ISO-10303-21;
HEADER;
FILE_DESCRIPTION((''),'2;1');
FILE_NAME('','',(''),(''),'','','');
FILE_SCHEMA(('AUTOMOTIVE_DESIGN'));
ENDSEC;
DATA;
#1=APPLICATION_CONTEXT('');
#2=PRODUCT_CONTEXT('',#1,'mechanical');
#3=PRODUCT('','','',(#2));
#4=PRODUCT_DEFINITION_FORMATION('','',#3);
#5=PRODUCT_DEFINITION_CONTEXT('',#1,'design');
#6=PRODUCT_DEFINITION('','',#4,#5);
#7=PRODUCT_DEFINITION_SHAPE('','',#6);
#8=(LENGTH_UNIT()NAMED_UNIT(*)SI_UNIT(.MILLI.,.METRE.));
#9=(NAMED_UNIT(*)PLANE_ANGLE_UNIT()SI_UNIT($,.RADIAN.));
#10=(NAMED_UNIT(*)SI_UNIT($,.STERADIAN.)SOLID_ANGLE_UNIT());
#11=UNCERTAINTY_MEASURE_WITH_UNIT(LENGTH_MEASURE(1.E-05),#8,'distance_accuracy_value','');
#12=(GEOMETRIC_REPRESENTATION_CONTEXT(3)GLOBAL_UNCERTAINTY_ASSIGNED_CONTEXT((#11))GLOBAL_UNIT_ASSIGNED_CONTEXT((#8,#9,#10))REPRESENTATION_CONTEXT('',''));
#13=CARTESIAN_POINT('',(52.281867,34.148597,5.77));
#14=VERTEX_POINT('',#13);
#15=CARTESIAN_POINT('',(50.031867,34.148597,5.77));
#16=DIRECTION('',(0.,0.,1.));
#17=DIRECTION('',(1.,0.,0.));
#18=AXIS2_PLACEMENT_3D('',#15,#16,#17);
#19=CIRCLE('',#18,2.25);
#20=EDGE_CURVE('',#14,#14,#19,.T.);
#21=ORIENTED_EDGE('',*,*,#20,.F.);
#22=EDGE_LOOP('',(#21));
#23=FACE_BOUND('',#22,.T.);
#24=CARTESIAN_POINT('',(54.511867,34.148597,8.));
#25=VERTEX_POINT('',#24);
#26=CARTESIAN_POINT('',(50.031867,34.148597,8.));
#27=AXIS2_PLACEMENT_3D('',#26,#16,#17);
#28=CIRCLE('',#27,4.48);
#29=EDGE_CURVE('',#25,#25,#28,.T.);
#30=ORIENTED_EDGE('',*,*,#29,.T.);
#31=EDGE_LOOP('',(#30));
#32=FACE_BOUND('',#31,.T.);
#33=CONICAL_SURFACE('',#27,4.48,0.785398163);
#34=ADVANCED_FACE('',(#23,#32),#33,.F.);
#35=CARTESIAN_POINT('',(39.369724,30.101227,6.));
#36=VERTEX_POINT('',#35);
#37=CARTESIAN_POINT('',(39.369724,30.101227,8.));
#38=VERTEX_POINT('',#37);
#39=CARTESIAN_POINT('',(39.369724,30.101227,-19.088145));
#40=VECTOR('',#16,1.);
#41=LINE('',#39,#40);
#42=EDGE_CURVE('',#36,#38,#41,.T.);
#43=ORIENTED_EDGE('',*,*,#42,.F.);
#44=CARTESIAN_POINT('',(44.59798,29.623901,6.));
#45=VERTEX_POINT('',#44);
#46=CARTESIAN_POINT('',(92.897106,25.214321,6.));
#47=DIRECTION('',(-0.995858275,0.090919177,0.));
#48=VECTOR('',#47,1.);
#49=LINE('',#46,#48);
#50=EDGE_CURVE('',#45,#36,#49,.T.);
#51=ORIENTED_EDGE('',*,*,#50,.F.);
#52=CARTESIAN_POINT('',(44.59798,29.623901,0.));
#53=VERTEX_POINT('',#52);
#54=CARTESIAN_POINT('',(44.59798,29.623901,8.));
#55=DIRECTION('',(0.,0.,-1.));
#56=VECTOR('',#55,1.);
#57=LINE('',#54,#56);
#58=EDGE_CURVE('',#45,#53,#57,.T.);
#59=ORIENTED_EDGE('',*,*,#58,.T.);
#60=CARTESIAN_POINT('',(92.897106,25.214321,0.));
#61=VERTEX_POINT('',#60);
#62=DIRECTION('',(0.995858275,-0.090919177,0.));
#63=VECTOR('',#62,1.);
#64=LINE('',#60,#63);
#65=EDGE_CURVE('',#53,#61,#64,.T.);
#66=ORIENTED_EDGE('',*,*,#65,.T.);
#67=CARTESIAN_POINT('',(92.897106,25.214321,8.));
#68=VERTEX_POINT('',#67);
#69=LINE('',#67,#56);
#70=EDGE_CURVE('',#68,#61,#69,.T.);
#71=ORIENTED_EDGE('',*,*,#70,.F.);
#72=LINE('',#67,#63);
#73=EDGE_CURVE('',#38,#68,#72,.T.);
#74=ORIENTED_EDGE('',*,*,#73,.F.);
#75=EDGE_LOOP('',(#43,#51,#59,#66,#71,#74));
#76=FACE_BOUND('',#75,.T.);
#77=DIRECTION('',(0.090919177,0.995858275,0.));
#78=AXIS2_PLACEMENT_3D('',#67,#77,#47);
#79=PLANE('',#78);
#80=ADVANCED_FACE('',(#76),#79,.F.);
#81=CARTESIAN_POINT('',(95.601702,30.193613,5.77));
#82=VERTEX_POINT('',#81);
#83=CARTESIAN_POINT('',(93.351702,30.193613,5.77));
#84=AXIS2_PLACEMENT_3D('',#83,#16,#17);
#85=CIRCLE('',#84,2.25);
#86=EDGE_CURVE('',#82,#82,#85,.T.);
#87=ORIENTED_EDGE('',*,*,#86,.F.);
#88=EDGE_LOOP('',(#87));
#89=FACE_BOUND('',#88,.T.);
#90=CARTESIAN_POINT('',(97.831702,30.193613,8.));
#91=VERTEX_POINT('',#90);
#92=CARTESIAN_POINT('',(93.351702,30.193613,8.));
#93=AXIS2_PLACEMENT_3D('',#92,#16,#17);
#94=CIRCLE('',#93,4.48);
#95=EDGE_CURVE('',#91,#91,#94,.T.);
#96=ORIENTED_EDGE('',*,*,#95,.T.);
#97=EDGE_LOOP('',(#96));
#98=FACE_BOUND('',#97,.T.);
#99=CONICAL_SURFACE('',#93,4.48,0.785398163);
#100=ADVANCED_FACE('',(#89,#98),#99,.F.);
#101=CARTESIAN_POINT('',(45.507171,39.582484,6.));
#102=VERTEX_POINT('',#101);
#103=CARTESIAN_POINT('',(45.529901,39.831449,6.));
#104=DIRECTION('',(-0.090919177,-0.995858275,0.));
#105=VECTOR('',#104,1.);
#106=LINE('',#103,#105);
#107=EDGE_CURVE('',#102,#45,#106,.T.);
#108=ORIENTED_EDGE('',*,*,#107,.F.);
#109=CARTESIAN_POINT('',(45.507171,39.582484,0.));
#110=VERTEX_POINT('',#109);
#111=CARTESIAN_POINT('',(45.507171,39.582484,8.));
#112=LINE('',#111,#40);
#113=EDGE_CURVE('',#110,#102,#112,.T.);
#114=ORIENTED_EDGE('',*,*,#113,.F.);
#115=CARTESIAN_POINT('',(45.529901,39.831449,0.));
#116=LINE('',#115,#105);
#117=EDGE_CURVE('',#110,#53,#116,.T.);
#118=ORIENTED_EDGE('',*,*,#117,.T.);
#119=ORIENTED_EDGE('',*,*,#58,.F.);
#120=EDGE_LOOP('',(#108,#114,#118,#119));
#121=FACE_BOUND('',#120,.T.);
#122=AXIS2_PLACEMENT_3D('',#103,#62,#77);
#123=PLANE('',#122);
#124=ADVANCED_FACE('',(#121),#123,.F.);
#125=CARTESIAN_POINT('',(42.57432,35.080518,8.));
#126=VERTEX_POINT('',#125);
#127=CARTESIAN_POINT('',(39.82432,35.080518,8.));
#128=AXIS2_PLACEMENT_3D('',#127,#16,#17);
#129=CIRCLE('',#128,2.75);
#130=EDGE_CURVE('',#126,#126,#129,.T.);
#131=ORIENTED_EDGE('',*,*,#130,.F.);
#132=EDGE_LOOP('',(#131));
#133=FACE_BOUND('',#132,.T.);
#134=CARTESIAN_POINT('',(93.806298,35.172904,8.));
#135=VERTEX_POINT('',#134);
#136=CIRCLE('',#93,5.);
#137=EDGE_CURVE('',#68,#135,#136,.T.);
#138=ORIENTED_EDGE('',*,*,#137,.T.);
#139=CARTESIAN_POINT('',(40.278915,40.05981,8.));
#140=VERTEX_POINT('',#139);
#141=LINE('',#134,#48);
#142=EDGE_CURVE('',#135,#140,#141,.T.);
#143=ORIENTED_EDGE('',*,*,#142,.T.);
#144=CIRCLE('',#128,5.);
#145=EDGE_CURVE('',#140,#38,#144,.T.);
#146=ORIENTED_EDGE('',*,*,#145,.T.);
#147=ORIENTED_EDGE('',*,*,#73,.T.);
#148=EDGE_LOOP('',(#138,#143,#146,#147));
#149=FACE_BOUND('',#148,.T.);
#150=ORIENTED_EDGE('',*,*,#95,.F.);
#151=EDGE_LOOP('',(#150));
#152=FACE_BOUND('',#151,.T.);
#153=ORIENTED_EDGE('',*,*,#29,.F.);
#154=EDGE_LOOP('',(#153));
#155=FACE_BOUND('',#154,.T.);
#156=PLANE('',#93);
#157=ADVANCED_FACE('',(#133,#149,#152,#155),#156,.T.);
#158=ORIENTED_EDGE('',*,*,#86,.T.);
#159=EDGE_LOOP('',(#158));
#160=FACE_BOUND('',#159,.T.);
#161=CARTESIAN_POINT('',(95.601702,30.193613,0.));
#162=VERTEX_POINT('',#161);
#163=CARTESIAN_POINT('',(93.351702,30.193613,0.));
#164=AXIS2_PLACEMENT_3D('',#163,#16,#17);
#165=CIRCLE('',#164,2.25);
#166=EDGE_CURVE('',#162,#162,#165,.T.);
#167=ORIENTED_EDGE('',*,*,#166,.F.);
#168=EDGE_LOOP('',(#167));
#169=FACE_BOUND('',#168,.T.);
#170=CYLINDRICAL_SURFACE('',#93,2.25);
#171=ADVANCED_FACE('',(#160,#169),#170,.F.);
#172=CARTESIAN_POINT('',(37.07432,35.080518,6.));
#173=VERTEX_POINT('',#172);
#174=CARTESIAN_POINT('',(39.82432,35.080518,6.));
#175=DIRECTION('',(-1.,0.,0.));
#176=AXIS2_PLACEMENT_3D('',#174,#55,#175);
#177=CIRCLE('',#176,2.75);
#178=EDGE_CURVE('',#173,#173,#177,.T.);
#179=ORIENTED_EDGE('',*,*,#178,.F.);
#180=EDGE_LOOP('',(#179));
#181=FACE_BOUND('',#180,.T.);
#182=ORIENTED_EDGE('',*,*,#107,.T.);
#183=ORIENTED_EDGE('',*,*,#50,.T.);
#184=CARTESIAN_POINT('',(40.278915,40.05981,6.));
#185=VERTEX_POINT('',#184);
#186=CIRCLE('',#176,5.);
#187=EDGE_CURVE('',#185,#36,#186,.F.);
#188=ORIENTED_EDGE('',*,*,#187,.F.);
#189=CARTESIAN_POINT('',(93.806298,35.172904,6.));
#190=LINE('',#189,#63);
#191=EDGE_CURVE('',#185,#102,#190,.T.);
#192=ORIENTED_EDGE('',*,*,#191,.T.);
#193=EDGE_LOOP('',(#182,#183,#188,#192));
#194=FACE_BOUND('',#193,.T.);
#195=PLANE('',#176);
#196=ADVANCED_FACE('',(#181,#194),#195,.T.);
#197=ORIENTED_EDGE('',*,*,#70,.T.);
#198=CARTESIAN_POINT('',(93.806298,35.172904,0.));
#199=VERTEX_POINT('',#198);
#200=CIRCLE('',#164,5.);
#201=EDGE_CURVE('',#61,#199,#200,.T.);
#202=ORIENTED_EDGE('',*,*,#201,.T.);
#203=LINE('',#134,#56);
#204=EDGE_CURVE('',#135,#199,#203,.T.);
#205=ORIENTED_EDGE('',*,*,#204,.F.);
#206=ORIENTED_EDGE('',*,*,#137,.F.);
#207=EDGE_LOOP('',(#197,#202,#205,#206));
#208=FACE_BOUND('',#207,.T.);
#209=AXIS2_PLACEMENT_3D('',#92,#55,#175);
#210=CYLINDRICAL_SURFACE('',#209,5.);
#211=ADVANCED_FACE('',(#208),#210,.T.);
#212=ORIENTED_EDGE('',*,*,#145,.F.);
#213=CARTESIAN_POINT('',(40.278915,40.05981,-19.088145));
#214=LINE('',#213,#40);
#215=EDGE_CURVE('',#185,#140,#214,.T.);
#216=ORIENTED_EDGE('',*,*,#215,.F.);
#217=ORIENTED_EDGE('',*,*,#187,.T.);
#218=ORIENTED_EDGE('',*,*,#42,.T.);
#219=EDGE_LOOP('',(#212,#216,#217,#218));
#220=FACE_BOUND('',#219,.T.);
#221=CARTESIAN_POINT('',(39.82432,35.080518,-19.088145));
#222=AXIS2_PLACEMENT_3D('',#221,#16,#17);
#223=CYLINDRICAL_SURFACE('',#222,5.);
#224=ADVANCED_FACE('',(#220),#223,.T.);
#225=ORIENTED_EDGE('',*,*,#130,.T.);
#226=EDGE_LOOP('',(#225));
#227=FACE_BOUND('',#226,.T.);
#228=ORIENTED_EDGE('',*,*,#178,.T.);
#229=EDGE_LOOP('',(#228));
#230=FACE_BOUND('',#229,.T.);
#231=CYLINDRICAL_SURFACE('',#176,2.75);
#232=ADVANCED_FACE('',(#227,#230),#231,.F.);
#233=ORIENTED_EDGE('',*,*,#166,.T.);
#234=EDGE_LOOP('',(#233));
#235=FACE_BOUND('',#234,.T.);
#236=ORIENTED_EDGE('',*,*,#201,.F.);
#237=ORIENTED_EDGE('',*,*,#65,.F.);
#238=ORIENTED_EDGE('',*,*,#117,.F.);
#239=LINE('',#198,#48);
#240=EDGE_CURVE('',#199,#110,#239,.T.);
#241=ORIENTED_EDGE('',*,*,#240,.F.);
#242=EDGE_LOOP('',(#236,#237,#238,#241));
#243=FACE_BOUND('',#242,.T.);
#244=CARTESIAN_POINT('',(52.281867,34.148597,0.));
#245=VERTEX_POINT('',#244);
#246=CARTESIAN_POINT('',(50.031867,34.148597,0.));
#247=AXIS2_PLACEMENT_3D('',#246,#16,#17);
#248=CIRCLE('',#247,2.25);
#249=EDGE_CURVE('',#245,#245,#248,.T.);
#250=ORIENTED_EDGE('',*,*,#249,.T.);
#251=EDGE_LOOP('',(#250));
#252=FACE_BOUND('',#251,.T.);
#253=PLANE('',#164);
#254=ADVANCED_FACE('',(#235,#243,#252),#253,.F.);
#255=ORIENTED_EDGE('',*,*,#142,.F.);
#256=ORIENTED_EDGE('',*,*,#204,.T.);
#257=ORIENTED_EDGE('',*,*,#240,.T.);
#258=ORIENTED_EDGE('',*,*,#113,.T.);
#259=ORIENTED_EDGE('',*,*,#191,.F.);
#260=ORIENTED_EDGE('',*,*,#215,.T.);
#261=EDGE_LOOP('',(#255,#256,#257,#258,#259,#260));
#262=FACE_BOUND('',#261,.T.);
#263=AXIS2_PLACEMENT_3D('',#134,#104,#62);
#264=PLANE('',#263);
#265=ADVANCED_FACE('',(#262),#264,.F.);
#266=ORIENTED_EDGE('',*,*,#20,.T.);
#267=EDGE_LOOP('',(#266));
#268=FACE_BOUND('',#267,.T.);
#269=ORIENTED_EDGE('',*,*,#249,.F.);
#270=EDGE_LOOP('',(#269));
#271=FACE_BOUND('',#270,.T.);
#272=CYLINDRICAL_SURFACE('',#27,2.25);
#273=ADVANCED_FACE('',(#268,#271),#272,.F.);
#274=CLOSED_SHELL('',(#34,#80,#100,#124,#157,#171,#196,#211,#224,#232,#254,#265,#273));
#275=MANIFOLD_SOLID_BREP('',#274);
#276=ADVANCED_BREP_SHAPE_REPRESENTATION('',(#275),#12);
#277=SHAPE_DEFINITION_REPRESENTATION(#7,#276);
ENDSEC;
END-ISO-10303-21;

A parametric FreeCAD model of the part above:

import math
import FreeCAD as App
import Part
import Sketcher

V = App.Vector
Q = App.Units.Quantity

doc = App.newDocument("Part")
body = doc.addObject("PartDesign::Body", "Body")

# Sketch on XY plane
sketch1 = body.newObject("Sketcher::SketchObject", "Sketch")
sketch1.AttachmentSupport = (doc.getObject("XY_Plane"), [""])
sketch1.MapMode = "FlatFace"
sketch1.addGeometry(Part.LineSegment(V(49.577271, 29.169305, 0), V(92.897106, 25.214321, 0)), False)
sketch1.addGeometry(Part.ArcOfCircle(Part.Circle(V(93.351702, 30.193613, 0), V(0, 0, 1), 5), math.radians(-95.216489), math.radians(84.783511)), False)
sketch1.addGeometry(Part.LineSegment(V(93.806298, 35.172904, 0), V(50.486463, 39.127888, 0)), False)
sketch1.addGeometry(Part.ArcOfCircle(Part.Circle(V(50.031867, 34.148597, 0), V(0, 0, 1), 5), math.radians(84.783511), math.radians(264.783511)), False)
sketch1.addConstraint(Sketcher.Constraint("Tangent", 0, 2, 1, 1))
sketch1.addConstraint(Sketcher.Constraint("Tangent", 1, 2, 2, 1))
sketch1.addConstraint(Sketcher.Constraint("Tangent", 2, 2, 3, 1))
sketch1.addConstraint(Sketcher.Constraint("Tangent", 3, 2, 0, 1))
sketch1.addConstraint(Sketcher.Constraint("Equal", 1, 3))
sketch1.addConstraint(Sketcher.Constraint("Radius", 1, Q("5 mm")))
sketch1.addConstraint(Sketcher.Constraint("Distance", 0, Q("43.5 mm")))
sketch1.addConstraint(Sketcher.Constraint("DistanceX", -1, 1, 1, 3, Q("93.351702 mm")))
sketch1.addConstraint(Sketcher.Constraint("DistanceY", 3, 2, 1, 2, Q("6.003599 mm")))
sketch1.addConstraint(Sketcher.Constraint("DistanceY", -1, 1, 0, 2, Q("25.214321 mm")))
pad1 = body.newObject("PartDesign::Pad", "Pad")
pad1.Profile = sketch1
pad1.Length = 8

# Sketch on XY plane
sketch2 = body.newObject("Sketcher::SketchObject", "Sketch001")
sketch2.AttachmentSupport = (doc.getObject("XY_Plane"), [""])
sketch2.MapMode = "FlatFace"
sketch2.AttachmentOffset = App.Placement(V(0, 0, 8), App.Rotation())
sketch2.addGeometry(Part.Circle(V(93.351702, 30.193613, 0), V(0, 0, 1), 2.25), False)
sketch2.addGeometry(Part.Circle(V(50.031867, 34.148597, 0), V(0, 0, 1), 2.25), False)
sketch2.addConstraint(Sketcher.Constraint("Equal", 0, 1))
sketch2.addConstraint(Sketcher.Constraint("Diameter", 0, Q("4.5 mm")))
sketch2.addConstraint(Sketcher.Constraint("DistanceX", -1, 1, 0, 3, Q("93.351702 mm")))
sketch2.addConstraint(Sketcher.Constraint("DistanceY", -1, 1, 0, 3, Q("30.193613 mm")))
sketch2.addConstraint(Sketcher.Constraint("DistanceX", -1, 1, 1, 3, Q("50.031867 mm")))
sketch2.addConstraint(Sketcher.Constraint("DistanceY", -1, 1, 1, 3, Q("34.148597 mm")))
doc.recompute()
hole = body.newObject("PartDesign::Hole", "Hole")
hole.Profile = sketch2
hole.ThreadType = "None"
hole.Diameter = 4.5
hole.DepthType = "ThroughAll"
hole.HoleCutType = "Countersink"
hole.HoleCutDiameter = 8.96
hole.HoleCutCountersinkAngle = 90

# Sketch on XY plane
sketch3 = body.newObject("Sketcher::SketchObject", "Sketch002")
sketch3.AttachmentSupport = (doc.getObject("XY_Plane"), [""])
sketch3.MapMode = "FlatFace"
sketch3.addGeometry(Part.LineSegment(V(39.369724, 30.101227, 0), V(49.577271, 29.169305, 0)), False)
sketch3.addGeometry(Part.ArcOfCircle(Part.Circle(V(50.031867, 34.148597, 0), V(0, 0, 1), 5), math.radians(84.783511), math.radians(264.783511)), False)
sketch3.addGeometry(Part.LineSegment(V(50.486463, 39.127888, 0), V(40.278915, 40.05981, 0)), False)
sketch3.addGeometry(Part.ArcOfCircle(Part.Circle(V(39.82432, 35.080518, 0), V(0, 0, 1), 5), math.radians(84.783511), math.radians(264.783511)), False)
sketch3.addConstraint(Sketcher.Constraint("Tangent", 0, 2, 1, 2))
sketch3.addConstraint(Sketcher.Constraint("Tangent", 1, 1, 2, 1))
sketch3.addConstraint(Sketcher.Constraint("Tangent", 2, 2, 3, 1))
sketch3.addConstraint(Sketcher.Constraint("Tangent", 3, 2, 0, 1))
sketch3.addConstraint(Sketcher.Constraint("Equal", 1, 3))
sketch3.addConstraint(Sketcher.Constraint("Radius", 1, Q("5 mm")))
sketch3.addConstraint(Sketcher.Constraint("Distance", 0, Q("10.25 mm")))
sketch3.addConstraint(Sketcher.Constraint("DistanceX", -1, 1, 3, 3, Q("39.82432 mm")))
sketch3.addConstraint(Sketcher.Constraint("DistanceY", -1, 1, 3, 3, Q("35.080518 mm")))
sketch3.addConstraint(Sketcher.Constraint("DistanceX", -1, 1, 0, 2, Q("49.577271 mm")))
pad2 = body.newObject("PartDesign::Pad", "Pad001")
pad2.Profile = sketch3
pad2.Length = 8

# Sketch on XY plane
sketch4 = body.newObject("Sketcher::SketchObject", "Sketch003")
sketch4.AttachmentSupport = (doc.getObject("XY_Plane"), [""])
sketch4.MapMode = "FlatFace"
sketch4.addGeometry(Part.LineSegment(V(44.57525, 29.374937, 0), V(39.346994, 29.852262, 0)), False)
sketch4.addGeometry(Part.ArcOfCircle(Part.Circle(V(39.82432, 35.080518, 0), V(0, 0, 1), 5.25), math.radians(84.783511), math.radians(264.783511)), False)
sketch4.addGeometry(Part.LineSegment(V(40.301645, 40.308774, 0), V(45.529901, 39.831449, 0)), False)
sketch4.addGeometry(Part.LineSegment(V(45.529901, 39.831449, 0), V(44.57525, 29.374937, 0)), False)
sketch4.addConstraint(Sketcher.Constraint("Tangent", 0, 2, 1, 2))
sketch4.addConstraint(Sketcher.Constraint("Tangent", 1, 1, 2, 1))
sketch4.addConstraint(Sketcher.Constraint("Coincident", 2, 2, 3, 1))
sketch4.addConstraint(Sketcher.Constraint("Coincident", 3, 2, 0, 1))
sketch4.addConstraint(Sketcher.Constraint("Parallel", 0, 2))
sketch4.addConstraint(Sketcher.Constraint("Perpendicular", 2, 3))
sketch4.addConstraint(Sketcher.Constraint("Radius", 1, Q("5.25 mm")))
sketch4.addConstraint(Sketcher.Constraint("Distance", 0, Q("5.25 mm")))
sketch4.addConstraint(Sketcher.Constraint("DistanceX", -1, 1, 2, 2, Q("45.529901 mm")))
sketch4.addConstraint(Sketcher.Constraint("DistanceX", -1, 1, 1, 3, Q("39.82432 mm")))
sketch4.addConstraint(Sketcher.Constraint("DistanceY", -1, 1, 1, 3, Q("35.080518 mm")))
pocket1 = body.newObject("PartDesign::Pocket", "Pocket")
pocket1.Profile = sketch4
pocket1.Length = 6
pocket1.Reversed = True

# Sketch on XY plane
sketch5 = body.newObject("Sketcher::SketchObject", "Sketch004")
sketch5.AttachmentSupport = (doc.getObject("XY_Plane"), [""])
sketch5.MapMode = "FlatFace"
sketch5.AttachmentOffset = App.Placement(V(0, 0, 6), App.Rotation())
sketch5.addGeometry(Part.Circle(V(39.82432, 35.080518, 0), V(0, 0, 1), 2.75), False)
sketch5.addConstraint(Sketcher.Constraint("Diameter", 0, Q("5.5 mm")))
sketch5.addConstraint(Sketcher.Constraint("DistanceX", -1, 1, 0, 3, Q("39.82432 mm")))
sketch5.addConstraint(Sketcher.Constraint("DistanceY", -1, 1, 0, 3, Q("35.080518 mm")))
doc.recompute()
hole2 = body.newObject("PartDesign::Hole", "Hole001")
hole2.Profile = sketch5
hole2.ThreadType = "None"
hole2.Diameter = 5.5
hole2.DepthType = "ThroughAll"
hole2.Reversed = True

doc.recompute()
